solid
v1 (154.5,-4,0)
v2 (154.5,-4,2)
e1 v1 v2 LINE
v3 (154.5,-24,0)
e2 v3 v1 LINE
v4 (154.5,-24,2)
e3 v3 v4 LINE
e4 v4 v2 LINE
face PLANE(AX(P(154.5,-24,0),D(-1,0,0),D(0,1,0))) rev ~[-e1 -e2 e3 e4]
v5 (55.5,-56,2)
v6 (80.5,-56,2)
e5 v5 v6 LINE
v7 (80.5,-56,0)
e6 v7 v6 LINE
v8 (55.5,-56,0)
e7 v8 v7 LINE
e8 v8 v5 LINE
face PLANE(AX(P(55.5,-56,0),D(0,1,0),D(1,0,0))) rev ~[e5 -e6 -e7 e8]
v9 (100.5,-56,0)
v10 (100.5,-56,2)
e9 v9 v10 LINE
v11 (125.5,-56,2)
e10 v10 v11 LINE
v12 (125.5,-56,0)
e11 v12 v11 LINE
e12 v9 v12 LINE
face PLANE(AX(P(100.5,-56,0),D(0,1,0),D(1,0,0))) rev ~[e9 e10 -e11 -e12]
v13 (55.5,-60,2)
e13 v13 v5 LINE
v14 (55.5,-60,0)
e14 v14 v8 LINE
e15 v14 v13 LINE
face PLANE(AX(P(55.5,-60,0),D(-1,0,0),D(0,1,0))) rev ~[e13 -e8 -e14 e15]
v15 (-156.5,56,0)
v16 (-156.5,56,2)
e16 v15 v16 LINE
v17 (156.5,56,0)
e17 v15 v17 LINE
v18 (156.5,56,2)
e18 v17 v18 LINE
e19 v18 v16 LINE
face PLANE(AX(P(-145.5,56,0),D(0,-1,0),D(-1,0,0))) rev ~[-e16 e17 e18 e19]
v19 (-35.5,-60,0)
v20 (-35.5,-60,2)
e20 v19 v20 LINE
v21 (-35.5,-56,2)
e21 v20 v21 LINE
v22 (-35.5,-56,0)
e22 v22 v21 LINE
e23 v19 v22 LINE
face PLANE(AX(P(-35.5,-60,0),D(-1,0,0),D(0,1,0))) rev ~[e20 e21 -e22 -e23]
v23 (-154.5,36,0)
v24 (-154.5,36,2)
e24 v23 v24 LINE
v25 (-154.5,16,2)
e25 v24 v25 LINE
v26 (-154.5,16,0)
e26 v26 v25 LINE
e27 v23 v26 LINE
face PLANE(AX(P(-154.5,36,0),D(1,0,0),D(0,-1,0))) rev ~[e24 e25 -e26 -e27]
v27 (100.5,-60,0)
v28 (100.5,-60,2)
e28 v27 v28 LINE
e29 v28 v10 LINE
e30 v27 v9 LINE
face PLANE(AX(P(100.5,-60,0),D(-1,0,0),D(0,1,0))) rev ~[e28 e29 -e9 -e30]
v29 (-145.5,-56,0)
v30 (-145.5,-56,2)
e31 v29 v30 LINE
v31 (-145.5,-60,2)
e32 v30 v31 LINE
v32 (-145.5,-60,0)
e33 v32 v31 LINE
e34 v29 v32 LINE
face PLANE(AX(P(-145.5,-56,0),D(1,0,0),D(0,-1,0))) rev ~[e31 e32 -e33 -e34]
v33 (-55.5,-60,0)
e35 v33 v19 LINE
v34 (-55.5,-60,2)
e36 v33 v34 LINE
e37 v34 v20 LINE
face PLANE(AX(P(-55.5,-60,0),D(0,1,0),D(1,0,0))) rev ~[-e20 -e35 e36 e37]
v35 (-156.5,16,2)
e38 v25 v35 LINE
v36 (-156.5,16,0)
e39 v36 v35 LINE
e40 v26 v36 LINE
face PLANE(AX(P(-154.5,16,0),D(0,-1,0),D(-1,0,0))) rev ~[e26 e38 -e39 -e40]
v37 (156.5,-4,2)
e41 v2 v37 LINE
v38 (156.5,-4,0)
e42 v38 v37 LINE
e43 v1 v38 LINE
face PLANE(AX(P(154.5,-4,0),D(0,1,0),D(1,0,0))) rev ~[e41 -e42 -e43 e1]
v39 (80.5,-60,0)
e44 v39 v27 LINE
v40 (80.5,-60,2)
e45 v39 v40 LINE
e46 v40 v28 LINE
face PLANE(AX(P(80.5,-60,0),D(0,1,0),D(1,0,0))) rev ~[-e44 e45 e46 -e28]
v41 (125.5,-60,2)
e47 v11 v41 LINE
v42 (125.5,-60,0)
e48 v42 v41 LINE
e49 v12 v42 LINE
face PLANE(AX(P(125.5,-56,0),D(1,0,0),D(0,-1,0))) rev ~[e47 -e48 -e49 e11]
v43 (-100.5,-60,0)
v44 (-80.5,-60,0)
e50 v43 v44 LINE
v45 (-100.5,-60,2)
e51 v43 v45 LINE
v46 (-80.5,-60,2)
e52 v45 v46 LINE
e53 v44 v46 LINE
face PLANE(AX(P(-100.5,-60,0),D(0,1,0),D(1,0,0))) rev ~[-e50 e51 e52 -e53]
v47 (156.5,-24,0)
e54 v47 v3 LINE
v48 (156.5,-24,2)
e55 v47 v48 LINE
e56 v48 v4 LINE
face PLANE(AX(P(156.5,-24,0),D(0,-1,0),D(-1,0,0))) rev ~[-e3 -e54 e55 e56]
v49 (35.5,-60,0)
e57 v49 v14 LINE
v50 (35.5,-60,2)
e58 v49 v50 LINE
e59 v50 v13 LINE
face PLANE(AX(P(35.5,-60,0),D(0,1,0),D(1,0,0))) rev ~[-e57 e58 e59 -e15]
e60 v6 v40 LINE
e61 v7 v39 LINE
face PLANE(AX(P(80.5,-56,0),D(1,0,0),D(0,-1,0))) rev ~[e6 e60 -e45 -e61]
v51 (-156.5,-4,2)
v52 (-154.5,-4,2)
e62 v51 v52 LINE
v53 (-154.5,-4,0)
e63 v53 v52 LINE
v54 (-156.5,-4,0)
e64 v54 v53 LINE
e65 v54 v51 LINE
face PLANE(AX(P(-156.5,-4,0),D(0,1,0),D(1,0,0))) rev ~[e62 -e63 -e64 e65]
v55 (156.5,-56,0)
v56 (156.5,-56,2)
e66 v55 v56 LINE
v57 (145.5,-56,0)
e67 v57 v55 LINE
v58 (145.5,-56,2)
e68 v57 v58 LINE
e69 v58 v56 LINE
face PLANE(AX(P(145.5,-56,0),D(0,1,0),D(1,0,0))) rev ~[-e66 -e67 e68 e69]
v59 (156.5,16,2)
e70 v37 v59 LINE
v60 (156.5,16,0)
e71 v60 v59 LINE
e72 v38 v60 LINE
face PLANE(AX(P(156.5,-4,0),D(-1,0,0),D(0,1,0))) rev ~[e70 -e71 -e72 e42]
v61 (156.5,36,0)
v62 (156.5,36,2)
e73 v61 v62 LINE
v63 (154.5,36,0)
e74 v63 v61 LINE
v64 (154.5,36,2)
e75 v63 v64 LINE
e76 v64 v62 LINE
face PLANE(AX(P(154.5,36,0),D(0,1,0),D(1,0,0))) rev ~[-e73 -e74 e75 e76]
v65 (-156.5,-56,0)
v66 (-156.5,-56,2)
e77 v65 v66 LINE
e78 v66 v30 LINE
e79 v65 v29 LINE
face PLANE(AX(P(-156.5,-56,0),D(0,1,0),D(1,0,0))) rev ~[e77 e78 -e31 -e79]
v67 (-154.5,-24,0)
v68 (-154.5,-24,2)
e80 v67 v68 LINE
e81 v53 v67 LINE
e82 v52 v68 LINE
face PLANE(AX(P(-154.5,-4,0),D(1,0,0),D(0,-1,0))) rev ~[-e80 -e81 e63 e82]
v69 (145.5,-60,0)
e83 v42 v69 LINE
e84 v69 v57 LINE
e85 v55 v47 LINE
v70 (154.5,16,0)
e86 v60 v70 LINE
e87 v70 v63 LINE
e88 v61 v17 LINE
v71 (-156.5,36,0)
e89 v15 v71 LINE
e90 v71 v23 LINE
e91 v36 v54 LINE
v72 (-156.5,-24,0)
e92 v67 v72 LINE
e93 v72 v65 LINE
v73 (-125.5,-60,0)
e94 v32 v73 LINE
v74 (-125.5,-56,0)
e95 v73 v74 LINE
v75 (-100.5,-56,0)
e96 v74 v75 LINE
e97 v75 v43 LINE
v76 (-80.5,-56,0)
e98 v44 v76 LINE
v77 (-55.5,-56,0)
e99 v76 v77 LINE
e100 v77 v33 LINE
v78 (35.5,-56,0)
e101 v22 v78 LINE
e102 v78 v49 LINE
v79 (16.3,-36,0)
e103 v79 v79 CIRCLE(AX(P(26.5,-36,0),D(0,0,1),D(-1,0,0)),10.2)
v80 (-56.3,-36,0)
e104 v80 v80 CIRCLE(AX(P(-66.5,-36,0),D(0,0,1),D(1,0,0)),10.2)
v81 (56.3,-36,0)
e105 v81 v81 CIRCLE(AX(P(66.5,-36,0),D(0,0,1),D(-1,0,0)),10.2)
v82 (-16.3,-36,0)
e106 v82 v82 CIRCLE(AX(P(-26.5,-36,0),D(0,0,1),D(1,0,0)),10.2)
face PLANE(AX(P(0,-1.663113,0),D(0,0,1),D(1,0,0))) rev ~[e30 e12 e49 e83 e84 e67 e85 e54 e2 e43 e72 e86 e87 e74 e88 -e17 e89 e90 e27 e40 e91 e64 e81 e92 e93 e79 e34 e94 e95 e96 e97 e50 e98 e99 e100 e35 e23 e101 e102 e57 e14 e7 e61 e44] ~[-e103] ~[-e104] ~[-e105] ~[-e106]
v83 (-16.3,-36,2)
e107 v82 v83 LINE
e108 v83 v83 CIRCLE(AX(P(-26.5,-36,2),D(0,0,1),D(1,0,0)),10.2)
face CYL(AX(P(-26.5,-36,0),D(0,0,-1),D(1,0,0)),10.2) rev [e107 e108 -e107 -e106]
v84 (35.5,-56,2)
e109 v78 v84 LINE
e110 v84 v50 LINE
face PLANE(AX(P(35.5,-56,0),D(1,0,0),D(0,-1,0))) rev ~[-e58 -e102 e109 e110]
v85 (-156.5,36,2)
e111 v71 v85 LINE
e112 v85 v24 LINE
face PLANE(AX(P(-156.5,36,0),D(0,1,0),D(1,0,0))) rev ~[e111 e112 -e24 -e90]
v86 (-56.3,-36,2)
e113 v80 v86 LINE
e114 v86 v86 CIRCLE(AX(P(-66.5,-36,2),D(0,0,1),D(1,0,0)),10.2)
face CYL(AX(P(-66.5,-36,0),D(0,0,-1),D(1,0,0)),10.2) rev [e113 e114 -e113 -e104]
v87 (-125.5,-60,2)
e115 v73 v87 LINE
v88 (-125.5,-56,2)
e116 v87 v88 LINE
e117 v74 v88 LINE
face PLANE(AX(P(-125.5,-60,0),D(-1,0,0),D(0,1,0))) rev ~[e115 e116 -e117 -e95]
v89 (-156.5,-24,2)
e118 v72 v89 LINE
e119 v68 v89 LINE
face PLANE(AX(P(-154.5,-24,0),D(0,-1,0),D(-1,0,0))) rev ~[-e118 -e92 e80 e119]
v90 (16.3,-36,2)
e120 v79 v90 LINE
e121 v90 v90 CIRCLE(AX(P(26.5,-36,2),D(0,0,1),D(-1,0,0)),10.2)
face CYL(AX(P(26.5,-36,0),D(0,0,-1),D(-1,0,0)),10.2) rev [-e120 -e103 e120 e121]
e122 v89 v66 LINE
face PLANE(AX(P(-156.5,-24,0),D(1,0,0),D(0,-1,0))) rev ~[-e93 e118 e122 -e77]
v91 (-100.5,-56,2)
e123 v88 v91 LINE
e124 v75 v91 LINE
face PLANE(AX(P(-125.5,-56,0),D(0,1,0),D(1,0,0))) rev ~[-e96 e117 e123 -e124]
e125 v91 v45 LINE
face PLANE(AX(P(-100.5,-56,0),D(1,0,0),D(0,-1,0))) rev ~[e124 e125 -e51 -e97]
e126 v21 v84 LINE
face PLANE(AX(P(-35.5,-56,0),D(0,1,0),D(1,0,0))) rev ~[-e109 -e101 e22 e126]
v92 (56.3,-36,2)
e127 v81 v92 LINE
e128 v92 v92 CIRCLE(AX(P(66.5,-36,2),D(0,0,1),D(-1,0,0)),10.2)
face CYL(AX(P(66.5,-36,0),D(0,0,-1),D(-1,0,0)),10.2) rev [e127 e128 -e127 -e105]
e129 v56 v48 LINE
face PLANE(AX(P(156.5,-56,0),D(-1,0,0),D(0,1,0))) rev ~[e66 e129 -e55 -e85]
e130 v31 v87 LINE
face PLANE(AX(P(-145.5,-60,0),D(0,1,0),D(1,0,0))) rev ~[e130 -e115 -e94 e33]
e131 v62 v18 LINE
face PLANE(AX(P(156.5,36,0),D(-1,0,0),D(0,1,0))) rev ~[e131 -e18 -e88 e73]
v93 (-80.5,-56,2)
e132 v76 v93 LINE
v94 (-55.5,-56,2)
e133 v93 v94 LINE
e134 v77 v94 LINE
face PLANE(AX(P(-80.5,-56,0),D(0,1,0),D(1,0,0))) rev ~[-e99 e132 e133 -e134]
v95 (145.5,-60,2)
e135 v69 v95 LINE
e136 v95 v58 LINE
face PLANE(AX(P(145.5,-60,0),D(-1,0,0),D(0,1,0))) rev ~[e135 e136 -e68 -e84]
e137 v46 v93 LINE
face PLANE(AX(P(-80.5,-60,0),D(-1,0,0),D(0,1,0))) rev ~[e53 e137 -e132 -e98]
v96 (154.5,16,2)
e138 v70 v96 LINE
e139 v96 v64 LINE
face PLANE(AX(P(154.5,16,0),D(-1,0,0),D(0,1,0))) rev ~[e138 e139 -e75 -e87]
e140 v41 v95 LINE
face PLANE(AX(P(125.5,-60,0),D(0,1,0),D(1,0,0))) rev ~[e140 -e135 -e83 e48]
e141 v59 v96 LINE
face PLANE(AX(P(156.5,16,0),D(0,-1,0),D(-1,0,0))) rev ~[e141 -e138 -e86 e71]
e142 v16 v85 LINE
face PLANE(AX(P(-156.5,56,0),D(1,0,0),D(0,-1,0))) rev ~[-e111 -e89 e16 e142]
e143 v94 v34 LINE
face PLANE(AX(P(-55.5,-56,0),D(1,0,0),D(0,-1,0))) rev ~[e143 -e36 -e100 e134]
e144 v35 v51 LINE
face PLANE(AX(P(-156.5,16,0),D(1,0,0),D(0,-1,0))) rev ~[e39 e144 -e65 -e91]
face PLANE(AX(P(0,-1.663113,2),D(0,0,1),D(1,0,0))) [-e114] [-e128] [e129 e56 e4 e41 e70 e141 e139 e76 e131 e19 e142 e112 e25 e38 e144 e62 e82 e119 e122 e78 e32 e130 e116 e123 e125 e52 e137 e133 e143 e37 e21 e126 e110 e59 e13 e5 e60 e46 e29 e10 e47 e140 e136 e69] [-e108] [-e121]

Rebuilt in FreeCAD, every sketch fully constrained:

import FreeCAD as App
import Part
import Sketcher
from FreeCAD import Vector
Q = App.Units.Quantity


def add_polygon(sketch, points):
    """Adds a closed chain of lines whose ends are joined by coincident constraints."""
    first, n = sketch.GeometryCount, len(points)
    for a, b in zip(points, points[1:] + points[:1]):
        sketch.addGeometry(Part.LineSegment(App.Vector(*a, 0), App.Vector(*b, 0)), False)
    for i in range(n):
        sketch.addConstraint(Sketcher.Constraint("Coincident", first + i, 2, first + (i + 1) % n, 1))

doc = App.newDocument("Part")
body = doc.addObject("PartDesign::Body", "Body")

# Sketch on XY plane
sketch1 = doc.addObject("Sketcher::SketchObject", "Sketch")
body.addObject(sketch1)
sketch1.AttachmentSupport = (doc.XY_Plane, [""])
sketch1.MapMode = "FlatFace"
add_polygon(sketch1, [(-156.5, -56), (-145.5, -56), (-145.5, -60), (-125.5, -60), (-125.5, -56), (-100.5, -56), (-100.5, -60), (-80.5, -60), (-80.5, -56), (-55.5, -56), (-55.5, -60), (-35.5, -60), (-35.5, -56), (35.5, -56), (35.5, -60), (55.5, -60), (55.5, -56), (80.5, -56), (80.5, -60), (100.5, -60), (100.5, -56), (125.5, -56), (125.5, -60), (145.5, -60), (145.5, -56), (156.5, -56), (156.5, -24), (154.5, -24), (154.5, -4), (156.5, -4), (156.5, 16), (154.5, 16), (154.5, 36), (156.5, 36), (156.5, 56), (145.5, 56), (145.5, 58), (125.5, 58), (125.5, 56), (100.5, 56), (100.5, 58), (80.5, 58), (80.5, 56), (55.5, 56), (55.5, 58), (35.5, 58), (35.5, 56), (-35.5, 56), (-35.5, 58), (-55.5, 58), (-55.5, 56), (-80.5, 56), (-80.5, 58), (-100.5, 58), (-100.5, 56), (-125.5, 56), (-125.5, 58), (-145.5, 58), (-145.5, 56), (-156.5, 56), (-156.5, 36), (-154.5, 36), (-154.5, 16), (-156.5, 16), (-156.5, -4), (-154.5, -4), (-154.5, -24), (-156.5, -24)])  # lines 0-67
sketch1.addGeometry(Part.Circle(Vector(-66.5, -36, 0), Vector(0, 0, 1), 10.2), False)  # 68
sketch1.addGeometry(Part.Circle(Vector(-26.5, -36, 0), Vector(0, 0, 1), 10.2), False)  # 69
sketch1.addGeometry(Part.Circle(Vector(26.5, -36, 0), Vector(0, 0, 1), 10.2), False)  # 70
sketch1.addGeometry(Part.Circle(Vector(66.5, -36, 0), Vector(0, 0, 1), 10.2), False)  # 71
sketch1.addConstraint([
    Sketcher.Constraint("Horizontal", 0),
    Sketcher.Constraint("Vertical", 1),
    Sketcher.Constraint("Horizontal", 2),
    Sketcher.Constraint("Vertical", 3),
    Sketcher.Constraint("Horizontal", 4),
    Sketcher.Constraint("Vertical", 5),
    Sketcher.Constraint("Horizontal", 6),
    Sketcher.Constraint("Vertical", 7),
    Sketcher.Constraint("Horizontal", 8),
    Sketcher.Constraint("Vertical", 9),
    Sketcher.Constraint("Horizontal", 10),
    Sketcher.Constraint("Vertical", 11),
    Sketcher.Constraint("Horizontal", 12),
    Sketcher.Constraint("Vertical", 13),
    Sketcher.Constraint("Horizontal", 14),
    Sketcher.Constraint("Vertical", 15),
    Sketcher.Constraint("Horizontal", 16),
    Sketcher.Constraint("Vertical", 17),
    Sketcher.Constraint("Horizontal", 18),
    Sketcher.Constraint("Vertical", 19),
    Sketcher.Constraint("Horizontal", 20),
    Sketcher.Constraint("Vertical", 21),
    Sketcher.Constraint("Horizontal", 22),
    Sketcher.Constraint("Vertical", 23),
    Sketcher.Constraint("Horizontal", 24),
    Sketcher.Constraint("Vertical", 25),
    Sketcher.Constraint("Horizontal", 26),
    Sketcher.Constraint("Vertical", 27),
    Sketcher.Constraint("Horizontal", 28),
    Sketcher.Constraint("Vertical", 29),
    Sketcher.Constraint("Horizontal", 30),
    Sketcher.Constraint("Vertical", 31),
    Sketcher.Constraint("Horizontal", 32),
    Sketcher.Constraint("Vertical", 33),
    Sketcher.Constraint("Horizontal", 34),
    Sketcher.Constraint("Vertical", 35),
    Sketcher.Constraint("Horizontal", 36),
    Sketcher.Constraint("Vertical", 37),
    Sketcher.Constraint("Horizontal", 38),
    Sketcher.Constraint("Vertical", 39),
    Sketcher.Constraint("Horizontal", 40),
    Sketcher.Constraint("Vertical", 41),
    Sketcher.Constraint("Horizontal", 42),
    Sketcher.Constraint("Vertical", 43),
    Sketcher.Constraint("Horizontal", 44),
    Sketcher.Constraint("Vertical", 45),
    Sketcher.Constraint("Horizontal", 46),
    Sketcher.Constraint("Vertical", 47),
    Sketcher.Constraint("Horizontal", 48),
    Sketcher.Constraint("Vertical", 49),
    Sketcher.Constraint("Horizontal", 50),
    Sketcher.Constraint("Vertical", 51),
    Sketcher.Constraint("Horizontal", 52),
    Sketcher.Constraint("Vertical", 53),
    Sketcher.Constraint("Horizontal", 54),
    Sketcher.Constraint("Vertical", 55),
    Sketcher.Constraint("Horizontal", 56),
    Sketcher.Constraint("Vertical", 57),
    Sketcher.Constraint("Horizontal", 58),
    Sketcher.Constraint("Vertical", 59),
    Sketcher.Constraint("Horizontal", 60),
    Sketcher.Constraint("Vertical", 61),
    Sketcher.Constraint("Horizontal", 62),
    Sketcher.Constraint("Vertical", 63),
    Sketcher.Constraint("Horizontal", 64),
    Sketcher.Constraint("Vertical", 65),
    Sketcher.Constraint("Horizontal", 66),
    Sketcher.Constraint("Vertical", 67),
    Sketcher.Constraint("Equal", 68, 69),
    Sketcher.Constraint("Equal", 69, 70),
    Sketcher.Constraint("Equal", 70, 71),
    Sketcher.Constraint("Symmetric", 0, 2, 34, 2, -1, 1),
    Sketcher.Constraint("Symmetric", 3, 2, 37, 2, -1, 1),
    Sketcher.Constraint("Symmetric", 7, 2, 41, 2, -1, 1),
    Sketcher.Constraint("Symmetric", 11, 2, 45, 2, -1, 1),
    Sketcher.Constraint("Symmetric", 15, 2, 49, 2, -1, 1),
    Sketcher.Constraint("Symmetric", 19, 2, 53, 2, -1, 1),
    Sketcher.Constraint("Symmetric", 23, 2, 57, 2, -1, 1),
    Sketcher.Constraint("Symmetric", 69, 3, 70, 3, -2),
    Sketcher.Constraint("Symmetric", 68, 3, 71, 3, -2),
    Sketcher.Constraint("Symmetric", 10, 2, 13, 2, -2),
    Sketcher.Constraint("Symmetric", 8, 2, 15, 2, -2),
    Sketcher.Constraint("Symmetric", 6, 2, 17, 2, -2),
    Sketcher.Constraint("Symmetric", 4, 2, 19, 2, -2),
    Sketcher.Constraint("Symmetric", 2, 2, 21, 2, -2),
    Sketcher.Constraint("Symmetric", 0, 2, 23, 2, -2),
    Sketcher.Constraint("Symmetric", 44, 2, 47, 2, -2),
    Sketcher.Constraint("Symmetric", 40, 2, 51, 2, -2),
    Sketcher.Constraint("Symmetric", 36, 2, 55, 2, -2),
    Sketcher.Constraint("Symmetric", 32, 2, 59, 2, -2),
    Sketcher.Constraint("Symmetric", 30, 2, 61, 2, -2),
    Sketcher.Constraint("Symmetric", 28, 2, 63, 2, -2),
    Sketcher.Constraint("Symmetric", 26, 2, 65, 2, -2),
    Sketcher.Constraint("Horizontal", 68, 3, 69, 3),
    Sketcher.Constraint("Horizontal", 0, 2, 3, 2),
    Sketcher.Constraint("Horizontal", 2, 2, 5, 2),
    Sketcher.Constraint("Horizontal", 4, 2, 7, 2),
    Sketcher.Constraint("Horizontal", 6, 2, 9, 2),
    Sketcher.Constraint("Horizontal", 8, 2, 11, 2),
    Sketcher.Constraint("Horizontal", 36, 2, 39, 2),
    Sketcher.Constraint("Horizontal", 40, 2, 43, 2),
    Sketcher.Constraint("Vertical", 25, 2, 28, 2),
    Sketcher.Constraint("Vertical", 27, 2, 30, 2),
    Sketcher.Constraint("Vertical", 29, 2, 32, 2),
    Sketcher.Constraint("Vertical", 19, 2, 38, 2),
    Sketcher.Constraint("Vertical", 15, 2, 42, 2),
    Sketcher.Constraint("Vertical", 63, 2, 66, 2),
    Sketcher.Constraint("Equal", 2, 6),
    Sketcher.Constraint("Equal", 4, 8),
    Sketcher.Constraint("Equal", 6, 10),
    Sketcher.Constraint("Equal", 56, 27),
    Sketcher.Constraint("Equal", 27, 29),
    Sketcher.Constraint("Equal", 29, 31),
    Sketcher.Constraint("Equal", 31, 33),
    Sketcher.Constraint("Equal", 66, 35),
    Sketcher.Constraint("Diameter", 68, Q("20.4 mm")),
    Sketcher.Constraint("DistanceX", 0, 1, 0, 2, Q("11 mm")),
    Sketcher.Constraint("DistanceX", 2, 1, 2, 2, Q("20 mm")),
    Sketcher.Constraint("DistanceX", 4, 1, 4, 2, Q("25 mm")),
    Sketcher.Constraint("DistanceX", 12, 1, 12, 2, Q("71 mm")),
    Sketcher.Constraint("DistanceX", 26, 2, 26, 1, Q("2 mm")),
    Sketcher.Constraint("DistanceY", 1, 2, 1, 1, Q("4 mm")),
    Sketcher.Constraint("DistanceY", 25, 1, 25, 2, Q("32 mm")),
    Sketcher.Constraint("DistanceY", 68, 3, -1, 1, Q("36 mm")),
    Sketcher.Constraint("DistanceX", 68, 3, -1, 1, Q("66.5 mm")),
    Sketcher.Constraint("DistanceX", 69, 3, -1, 1, Q("26.5 mm")),
])
pad1 = doc.addObject("PartDesign::Pad", "Pad")
body.addObject(pad1)
pad1.Profile = sketch1
pad1.Length = 2

# Sketch on XY plane
sketch2 = doc.addObject("Sketcher::SketchObject", "Sketch001")
body.addObject(sketch2)
sketch2.AttachmentSupport = (doc.XY_Plane, [""])
sketch2.MapMode = "FlatFace"
sketch2.AttachmentOffset = App.Placement(Vector(0, 0, 2), App.Rotation())
add_polygon(sketch2, [(-145.5, 58), (-145.5, 56), (-125.5, 56), (-125.5, 58)])  # lines 0-3
add_polygon(sketch2, [(-100.5, 58), (-100.5, 56), (-80.5, 56), (-80.5, 58)])  # lines 4-7
add_polygon(sketch2, [(-55.5, 58), (-55.5, 56), (-35.5, 56), (-35.5, 58)])  # lines 8-11
add_polygon(sketch2, [(35.5, 58), (35.5, 56), (55.5, 56), (55.5, 58)])  # lines 12-15
add_polygon(sketch2, [(80.5, 58), (80.5, 56), (100.5, 56), (100.5, 58)])  # lines 16-19
add_polygon(sketch2, [(125.5, 58), (125.5, 56), (145.5, 56), (145.5, 58)])  # lines 20-23
sketch2.addConstraint([
    Sketcher.Constraint("Vertical", 0),
    Sketcher.Constraint("Horizontal", 1),
    Sketcher.Constraint("Vertical", 2),
    Sketcher.Constraint("Horizontal", 3),
    Sketcher.Constraint("Vertical", 4),
    Sketcher.Constraint("Horizontal", 5),
    Sketcher.Constraint("Vertical", 6),
    Sketcher.Constraint("Horizontal", 7),
    Sketcher.Constraint("Vertical", 8),
    Sketcher.Constraint("Horizontal", 9),
    Sketcher.Constraint("Vertical", 10),
    Sketcher.Constraint("Horizontal", 11),
    Sketcher.Constraint("Vertical", 12),
    Sketcher.Constraint("Horizontal", 13),
    Sketcher.Constraint("Vertical", 14),
    Sketcher.Constraint("Horizontal", 15),
    Sketcher.Constraint("Vertical", 16),
    Sketcher.Constraint("Horizontal", 17),
    Sketcher.Constraint("Vertical", 18),
    Sketcher.Constraint("Horizontal", 19),
    Sketcher.Constraint("Vertical", 20),
    Sketcher.Constraint("Horizontal", 21),
    Sketcher.Constraint("Vertical", 22),
    Sketcher.Constraint("Horizontal", 23),
    Sketcher.Constraint("Symmetric", 9, 2, 12, 2, -2),
    Sketcher.Constraint("Symmetric", 11, 2, 14, 2, -2),
    Sketcher.Constraint("Symmetric", 5, 2, 16, 2, -2),
    Sketcher.Constraint("Symmetric", 7, 2, 18, 2, -2),
    Sketcher.Constraint("Symmetric", 1, 2, 20, 2, -2),
    Sketcher.Constraint("Symmetric", 3, 2, 22, 2, -2),
    Sketcher.Constraint("Horizontal", 1, 2, 4, 2),
    Sketcher.Constraint("Horizontal", 3, 2, 6, 2),
    Sketcher.Constraint("Horizontal", 5, 2, 8, 2),
    Sketcher.Constraint("Horizontal", 7, 2, 10, 2),
    Sketcher.Constraint("Equal", 3, 5),
    Sketcher.Constraint("Equal", 7, 9),
    Sketcher.Constraint("DistanceX", 1, 1, 1, 2, Q("20 mm")),
    Sketcher.Constraint("DistanceY", 0, 2, 0, 1, Q("2 mm")),
    Sketcher.Constraint("DistanceY", -1, 1, 0, 2, Q("56 mm")),
    Sketcher.Constraint("DistanceX", 1, 2, 4, 2, Q("25 mm")),
    Sketcher.Constraint("DistanceX", 5, 2, 8, 2, Q("25 mm")),
    Sketcher.Constraint("DistanceX", 9, 2, 12, 2, Q("71 mm")),
])
pocket1 = doc.addObject("PartDesign::Pocket", "Pocket")
body.addObject(pocket1)
pocket1.Profile = sketch2
pocket1.Type = "ThroughAll"
pocket1.Midplane = True

doc.recompute()
